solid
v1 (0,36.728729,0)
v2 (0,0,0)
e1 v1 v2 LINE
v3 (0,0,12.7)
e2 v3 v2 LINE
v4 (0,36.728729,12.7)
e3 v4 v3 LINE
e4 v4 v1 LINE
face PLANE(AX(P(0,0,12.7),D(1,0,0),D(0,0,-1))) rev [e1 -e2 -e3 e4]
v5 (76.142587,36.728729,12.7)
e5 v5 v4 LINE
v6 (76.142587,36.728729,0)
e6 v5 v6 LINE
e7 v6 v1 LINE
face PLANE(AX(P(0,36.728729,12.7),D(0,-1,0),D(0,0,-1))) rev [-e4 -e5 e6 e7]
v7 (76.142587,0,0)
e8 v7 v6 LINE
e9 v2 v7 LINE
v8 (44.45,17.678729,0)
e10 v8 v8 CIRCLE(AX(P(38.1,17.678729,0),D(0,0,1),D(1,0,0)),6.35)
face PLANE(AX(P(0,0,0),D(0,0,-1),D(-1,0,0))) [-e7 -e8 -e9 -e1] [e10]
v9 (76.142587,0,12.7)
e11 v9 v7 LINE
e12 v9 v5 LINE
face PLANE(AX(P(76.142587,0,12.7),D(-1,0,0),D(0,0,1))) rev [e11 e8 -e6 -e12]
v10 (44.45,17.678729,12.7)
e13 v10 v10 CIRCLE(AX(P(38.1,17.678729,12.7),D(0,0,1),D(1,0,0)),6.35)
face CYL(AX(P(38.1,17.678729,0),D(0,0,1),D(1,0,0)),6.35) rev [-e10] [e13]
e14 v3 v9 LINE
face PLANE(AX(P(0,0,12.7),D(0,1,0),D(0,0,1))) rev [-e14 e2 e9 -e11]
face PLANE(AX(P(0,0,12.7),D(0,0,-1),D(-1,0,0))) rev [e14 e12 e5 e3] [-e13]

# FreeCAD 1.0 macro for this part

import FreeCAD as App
import Part
import Sketcher

V = App.Vector


def add_polygon(sketch, points):
    """Adds a closed chain of lines whose ends are joined by coincident constraints."""
    first, n = sketch.GeometryCount, len(points)
    for a, b in zip(points, points[1:] + points[:1]):
        sketch.addGeometry(Part.LineSegment(App.Vector(*a, 0), App.Vector(*b, 0)), False)
    for i in range(n):
        sketch.addConstraint(Sketcher.Constraint("Coincident", first + i, 2, first + (i + 1) % n, 1))

doc = App.newDocument("Part")
body = doc.addObject("PartDesign::Body", "Body")

# Sketch on XY plane
sketch1 = body.newObject("Sketcher::SketchObject", "Sketch")
sketch1.AttachmentSupport = (doc.getObject("XY_Plane"), [""])
sketch1.MapMode = "FlatFace"
add_polygon(sketch1, [(0, 36.728729), (0, 0), (76.142587, 0), (76.142587, 36.728729)])  # lines 0-3
sketch1.addConstraint([
    Sketcher.Constraint("Vertical", 0),
    Sketcher.Constraint("Horizontal", 1),
    Sketcher.Constraint("Vertical", 2),
    Sketcher.Constraint("Horizontal", 3),
    Sketcher.Constraint("Coincident", 0, 2, -1, 1),
    Sketcher.Constraint("DistanceY", 0, 2, 0, 1, 36.728729),
    Sketcher.Constraint("DistanceX", 1, 1, 1, 2, 76.142587),
])
pad1 = body.newObject("PartDesign::Pad", "Pad")
pad1.Profile = sketch1
pad1.Length = 12.7

# Sketch on XY plane
sketch2 = body.newObject("Sketcher::SketchObject", "Sketch001")
sketch2.AttachmentSupport = (doc.getObject("XY_Plane"), [""])
sketch2.MapMode = "FlatFace"
sketch2.AttachmentOffset = App.Placement(V(0, 0, 12.7), App.Rotation())
sketch2.addGeometry(Part.Circle(V(38.1, 17.678729, 0), V(0, 0, 1), 6.35), False)
sketch2.addConstraint([
    Sketcher.Constraint("Diameter", 0, 12.7),
    Sketcher.Constraint("DistanceX", -1, 1, 0, 3, 38.1),
    Sketcher.Constraint("DistanceY", -1, 1, 0, 3, 17.678729),
])
pocket1 = body.newObject("PartDesign::Pocket", "Pocket")
pocket1.Profile = sketch2
pocket1.Type = "ThroughAll"

doc.recompute()
